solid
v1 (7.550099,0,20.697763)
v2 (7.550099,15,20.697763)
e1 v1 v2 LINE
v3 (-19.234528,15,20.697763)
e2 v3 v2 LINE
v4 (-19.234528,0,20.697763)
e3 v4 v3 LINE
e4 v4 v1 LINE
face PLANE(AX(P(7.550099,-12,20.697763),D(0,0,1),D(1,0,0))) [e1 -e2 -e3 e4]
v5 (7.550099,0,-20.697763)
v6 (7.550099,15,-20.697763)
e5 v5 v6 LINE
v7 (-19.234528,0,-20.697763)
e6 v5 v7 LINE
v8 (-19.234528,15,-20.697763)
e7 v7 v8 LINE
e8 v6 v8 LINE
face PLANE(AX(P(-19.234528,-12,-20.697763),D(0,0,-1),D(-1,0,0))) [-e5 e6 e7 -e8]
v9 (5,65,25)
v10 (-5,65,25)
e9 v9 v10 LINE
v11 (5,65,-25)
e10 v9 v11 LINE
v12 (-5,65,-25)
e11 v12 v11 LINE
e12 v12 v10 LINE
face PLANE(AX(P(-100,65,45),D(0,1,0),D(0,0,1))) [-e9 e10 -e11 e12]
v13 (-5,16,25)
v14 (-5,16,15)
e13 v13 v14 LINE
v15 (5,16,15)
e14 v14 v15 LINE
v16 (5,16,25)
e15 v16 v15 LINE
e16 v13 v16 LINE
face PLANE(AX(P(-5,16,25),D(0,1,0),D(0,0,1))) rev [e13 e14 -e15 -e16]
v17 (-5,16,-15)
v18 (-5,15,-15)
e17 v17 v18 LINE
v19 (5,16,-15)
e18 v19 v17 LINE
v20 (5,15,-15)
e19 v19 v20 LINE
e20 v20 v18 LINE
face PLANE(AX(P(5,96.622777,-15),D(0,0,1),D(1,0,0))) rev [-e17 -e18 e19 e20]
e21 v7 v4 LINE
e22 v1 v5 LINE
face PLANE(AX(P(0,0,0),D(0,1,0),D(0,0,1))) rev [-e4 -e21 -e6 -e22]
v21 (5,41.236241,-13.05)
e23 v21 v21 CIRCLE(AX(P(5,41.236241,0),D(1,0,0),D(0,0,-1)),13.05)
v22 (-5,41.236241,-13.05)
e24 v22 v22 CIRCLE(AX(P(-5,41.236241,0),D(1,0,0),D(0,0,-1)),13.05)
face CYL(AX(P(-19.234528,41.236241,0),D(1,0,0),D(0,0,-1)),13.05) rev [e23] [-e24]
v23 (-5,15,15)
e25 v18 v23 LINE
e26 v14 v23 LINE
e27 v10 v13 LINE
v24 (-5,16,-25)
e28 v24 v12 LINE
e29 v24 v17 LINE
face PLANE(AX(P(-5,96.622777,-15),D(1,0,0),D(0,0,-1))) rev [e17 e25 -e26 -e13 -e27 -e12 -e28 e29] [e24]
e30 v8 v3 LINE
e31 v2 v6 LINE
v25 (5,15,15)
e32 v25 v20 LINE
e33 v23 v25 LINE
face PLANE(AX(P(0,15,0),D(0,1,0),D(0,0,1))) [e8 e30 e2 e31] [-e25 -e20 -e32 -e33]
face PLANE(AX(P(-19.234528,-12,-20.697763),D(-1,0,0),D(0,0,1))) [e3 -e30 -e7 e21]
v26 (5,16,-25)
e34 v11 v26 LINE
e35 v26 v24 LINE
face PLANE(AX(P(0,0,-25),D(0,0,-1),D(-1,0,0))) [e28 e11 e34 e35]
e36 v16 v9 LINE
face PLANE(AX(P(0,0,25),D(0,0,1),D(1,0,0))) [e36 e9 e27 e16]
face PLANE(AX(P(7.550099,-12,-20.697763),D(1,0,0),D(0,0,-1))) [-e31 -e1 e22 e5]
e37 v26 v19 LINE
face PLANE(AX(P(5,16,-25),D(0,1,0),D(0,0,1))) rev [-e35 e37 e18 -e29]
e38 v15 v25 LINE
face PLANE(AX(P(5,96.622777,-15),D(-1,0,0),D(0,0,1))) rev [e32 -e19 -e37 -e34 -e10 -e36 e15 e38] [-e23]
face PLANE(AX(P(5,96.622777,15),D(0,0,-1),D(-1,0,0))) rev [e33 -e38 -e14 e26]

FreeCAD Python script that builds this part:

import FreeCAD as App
import Part
import Sketcher
from FreeCAD import Vector

doc = App.newDocument("Part")
params = doc.addObject("Spreadsheet::Sheet", "Params")
for row, (alias, value) in enumerate([
    ("sketch1_width", "280 mm"),
    ("sketch1_height", "210 mm"),
    ("pad1_length", "15 mm"),
    ("sketch2_diameter", "10 mm"),
    ("pad2_length", "50 mm"),
    ("sketch3_width", "10 mm"),
    ("sketch3_height", "30 mm"),
    ("pad3_length", "50 mm"),
    ("pocket1_length", "15 mm"),
    ("sketch5_diameter", "10 mm"),
    ("pocket2_length", "65 mm"),
    ("sketch6_diameter", "20 mm"),
    ("pocket3_length", "12 mm"),
    ("sketch7_width", "29.13 mm"),
    ("sketch7_height", "16.72 mm"),
    ("pocket4_length", "15 mm"),
    ("pocket5_length", "27 mm"),
    ("sketch9_width", "10 mm"),
    ("sketch9_height", "49 mm"),
    ("pad4_length", "10 mm"),
    ("sketch10_width", "10 mm"),
    ("sketch10_height", "49 mm"),
    ("pad5_length", "10 mm"),
    ("sketch11_diameter", "26.1 mm"),
], start=1):
    params.set(f"A{row}", alias)
    params.set(f"B{row}", "=" + value)
    params.setAlias(f"B{row}", alias)

body = doc.addObject("PartDesign::Body", "Body")

# Sketch on XZ plane
sketch1 = doc.addObject("Sketcher::SketchObject", "Sketch")
body.addObject(sketch1)
sketch1.AttachmentSupport = (doc.XZ_Plane, [""])
sketch1.MapMode = "FlatFace"
sketch1.addGeometry(Part.LineSegment(Vector(-140, -105, 0), Vector(-140, 105, 0)), False)
sketch1.addGeometry(Part.LineSegment(Vector(-140, 105, 0), Vector(140, 105, 0)), False)
sketch1.addGeometry(Part.LineSegment(Vector(140, 105, 0), Vector(140, -105, 0)), False)
sketch1.addGeometry(Part.LineSegment(Vector(140, -105, 0), Vector(-140, -105, 0)), False)
sketch1.addConstraint(Sketcher.Constraint("Coincident", 0, 2, 1, 1))
sketch1.addConstraint(Sketcher.Constraint("Coincident", 1, 2, 2, 1))
sketch1.addConstraint(Sketcher.Constraint("Coincident", 2, 2, 3, 1))
sketch1.addConstraint(Sketcher.Constraint("Coincident", 3, 2, 0, 1))
sketch1.addConstraint(Sketcher.Constraint("Vertical", 0))
sketch1.addConstraint(Sketcher.Constraint("Horizontal", 1))
sketch1.addConstraint(Sketcher.Constraint("Vertical", 2))
sketch1.addConstraint(Sketcher.Constraint("Horizontal", 3))
sketch1.addConstraint(Sketcher.Constraint("Symmetric", 0, 2, 2, 2, -1, 1))
sketch1.addConstraint(Sketcher.Constraint("DistanceX", 1, 1, 1, 2, 280.0))
sketch1.addConstraint(Sketcher.Constraint("DistanceY", 0, 1, 0, 2, 210.0))
sketch1.setExpression("Constraints[9]", "Params.sketch1_width")
sketch1.setExpression("Constraints[10]", "Params.sketch1_height")
pad1 = doc.addObject("PartDesign::Pad", "Pad")
body.addObject(pad1)
pad1.Profile = sketch1
pad1.setExpression("Length", "Params.pad1_length")
pad1.Reversed = True

# Sketch on XZ plane
sketch2 = doc.addObject("Sketcher::SketchObject", "Sketch001")
body.addObject(sketch2)
sketch2.AttachmentSupport = (doc.XZ_Plane, [""])
sketch2.MapMode = "FlatFace"
sketch2.AttachmentOffset = App.Placement(Vector(0, 0, -15), App.Rotation())
sketch2.addGeometry(Part.Circle(Vector(-100, 0, 0), Vector(0, 0, 1), 5), False)
sketch2.addGeometry(Part.Circle(Vector(-100, -45, 0), Vector(0, 0, 1), 5), False)
sketch2.addGeometry(Part.Circle(Vector(-100, 45, 0), Vector(0, 0, 1), 5), False)
sketch2.addConstraint(Sketcher.Constraint("Equal", 0, 1))
sketch2.addConstraint(Sketcher.Constraint("Equal", 1, 2))
sketch2.addConstraint(Sketcher.Constraint("Symmetric", 1, 3, 2, 3, -1))
sketch2.addConstraint(Sketcher.Constraint("PointOnObject", 0, 3, -1))
sketch2.addConstraint(Sketcher.Constraint("Vertical", 0, 3, 1, 3))
sketch2.addConstraint(Sketcher.Constraint("Diameter", 0, 10.0))
sketch2.addConstraint(Sketcher.Constraint("DistanceX", 0, 3, -1, 1, 100.0))
sketch2.addConstraint(Sketcher.Constraint("DistanceY", 1, 3, -1, 1, 45.0))
sketch2.setExpression("Constraints[5]", "Params.sketch2_diameter")
pad2 = doc.addObject("PartDesign::Pad", "Pad001")
body.addObject(pad2)
pad2.Profile = sketch2
pad2.setExpression("Length", "Params.pad2_length")
pad2.Reversed = True

# Sketch on XZ plane
sketch3 = doc.addObject("Sketcher::SketchObject", "Sketch002")
body.addObject(sketch3)
sketch3.AttachmentSupport = (doc.XZ_Plane, [""])
sketch3.MapMode = "FlatFace"
sketch3.AttachmentOffset = App.Placement(Vector(0, 0, -15), App.Rotation())
sketch3.addGeometry(Part.LineSegment(Vector(-5, -15, 0), Vector(-5, 15, 0)), False)
sketch3.addGeometry(Part.LineSegment(Vector(-5, 15, 0), Vector(5, 15, 0)), False)
sketch3.addGeometry(Part.LineSegment(Vector(5, 15, 0), Vector(5, -15, 0)), False)
sketch3.addGeometry(Part.LineSegment(Vector(5, -15, 0), Vector(-5, -15, 0)), False)
sketch3.addConstraint(Sketcher.Constraint("Coincident", 0, 2, 1, 1))
sketch3.addConstraint(Sketcher.Constraint("Coincident", 1, 2, 2, 1))
sketch3.addConstraint(Sketcher.Constraint("Coincident", 2, 2, 3, 1))
sketch3.addConstraint(Sketcher.Constraint("Coincident", 3, 2, 0, 1))
sketch3.addConstraint(Sketcher.Constraint("Vertical", 0))
sketch3.addConstraint(Sketcher.Constraint("Horizontal", 1))
sketch3.addConstraint(Sketcher.Constraint("Vertical", 2))
sketch3.addConstraint(Sketcher.Constraint("Horizontal", 3))
sketch3.addConstraint(Sketcher.Constraint("Symmetric", 0, 2, 2, 2, -1, 1))
sketch3.addConstraint(Sketcher.Constraint("DistanceX", 1, 1, 1, 2, 10.0))
sketch3.addConstraint(Sketcher.Constraint("DistanceY", 0, 1, 0, 2, 30.0))
sketch3.setExpression("Constraints[9]", "Params.sketch3_width")
sketch3.setExpression("Constraints[10]", "Params.sketch3_height")
pad3 = doc.addObject("PartDesign::Pad", "Pad002")
body.addObject(pad3)
pad3.Profile = sketch3
pad3.setExpression("Length", "Params.pad3_length")
pad3.Reversed = True

# Sketch on XZ plane
sketch4 = doc.addObject("Sketcher::SketchObject", "Sketch003")
body.addObject(sketch4)
sketch4.AttachmentSupport = (doc.XZ_Plane, [""])
sketch4.MapMode = "FlatFace"
sketch4.addGeometry(Part.LineSegment(Vector(-179, -121, 0), Vector(-179, 128, 0)), False)
sketch4.addGeometry(Part.LineSegment(Vector(-179, 128, 0), Vector(182, 128, 0)), False)
sketch4.addGeometry(Part.LineSegment(Vector(182, 128, 0), Vector(182, -121, 0)), False)
sketch4.addGeometry(Part.LineSegment(Vector(182, -121, 0), Vector(-179, -121, 0)), False)
sketch4.addGeometry(Part.LineSegment(Vector(124, 63, 0), Vector(-124, 63, 0)), False)
sketch4.addGeometry(Part.LineSegment(Vector(-124, 63, 0), Vector(-124, -63, 0)), False)
sketch4.addGeometry(Part.LineSegment(Vector(-124, -63, 0), Vector(124, -63, 0)), False)
sketch4.addGeometry(Part.LineSegment(Vector(124, -63, 0), Vector(124, 63, 0)), False)
sketch4.addConstraint(Sketcher.Constraint("Coincident", 0, 2, 1, 1))
sketch4.addConstraint(Sketcher.Constraint("Coincident", 1, 2, 2, 1))
sketch4.addConstraint(Sketcher.Constraint("Coincident", 2, 2, 3, 1))
sketch4.addConstraint(Sketcher.Constraint("Coincident", 3, 2, 0, 1))
sketch4.addConstraint(Sketcher.Constraint("Coincident", 4, 2, 5, 1))
sketch4.addConstraint(Sketcher.Constraint("Coincident", 5, 2, 6, 1))
sketch4.addConstraint(Sketcher.Constraint("Coincident", 6, 2, 7, 1))
sketch4.addConstraint(Sketcher.Constraint("Coincident", 7, 2, 4, 1))
sketch4.addConstraint(Sketcher.Constraint("Vertical", 0))
sketch4.addConstraint(Sketcher.Constraint("Horizontal", 1))
sketch4.addConstraint(Sketcher.Constraint("Vertical", 2))
sketch4.addConstraint(Sketcher.Constraint("Horizontal", 3))
sketch4.addConstraint(Sketcher.Constraint("Horizontal", 4))
sketch4.addConstraint(Sketcher.Constraint("Vertical", 5))
sketch4.addConstraint(Sketcher.Constraint("Horizontal", 6))
sketch4.addConstraint(Sketcher.Constraint("Vertical", 7))
sketch4.addConstraint(Sketcher.Constraint("Symmetric", 4, 2, 6, 2, -1, 1))
sketch4.addConstraint(Sketcher.Constraint("DistanceX", 1, 1, 1, 2, 360.490906))
sketch4.addConstraint(Sketcher.Constraint("DistanceX", 4, 2, 4, 1, 248.173777))
sketch4.addConstraint(Sketcher.Constraint("DistanceY", 0, 1, 0, 2, 249.182613))
sketch4.addConstraint(Sketcher.Constraint("DistanceY", 5, 2, 5, 1, 125.095725))
sketch4.addConstraint(Sketcher.Constraint("DistanceX", -1, 1, 1, 2, 181.590568))
sketch4.addConstraint(Sketcher.Constraint("DistanceY", 3, 2, 4, 2, 183.94452))
pocket1 = doc.addObject("PartDesign::Pocket", "Pocket")
body.addObject(pocket1)
pocket1.Profile = sketch4
pocket1.setExpression("Length", "Params.pocket1_length")

# Sketch on XZ plane
sketch5 = doc.addObject("Sketcher::SketchObject", "Sketch004")
body.addObject(sketch5)
sketch5.AttachmentSupport = (doc.XZ_Plane, [""])
sketch5.MapMode = "FlatFace"
sketch5.addGeometry(Part.Circle(Vector(-100, -45, 0), Vector(0, 0, 1), 5), False)
sketch5.addGeometry(Part.Circle(Vector(-100, 0, 0), Vector(0, 0, 1), 5), False)
sketch5.addGeometry(Part.Circle(Vector(-100, 45, 0), Vector(0, 0, 1), 5), False)
sketch5.addConstraint(Sketcher.Constraint("Equal", 0, 1))
sketch5.addConstraint(Sketcher.Constraint("Equal", 1, 2))
sketch5.addConstraint(Sketcher.Constraint("Symmetric", 0, 3, 2, 3, -1))
sketch5.addConstraint(Sketcher.Constraint("PointOnObject", 1, 3, -1))
sketch5.addConstraint(Sketcher.Constraint("Vertical", 0, 3, 1, 3))
sketch5.addConstraint(Sketcher.Constraint("Diameter", 0, 10.0))
sketch5.addConstraint(Sketcher.Constraint("DistanceX", 0, 3, -1, 1, 100.0))
sketch5.addConstraint(Sketcher.Constraint("DistanceY", 0, 3, -1, 1, 45.0))
sketch5.setExpression("Constraints[5]", "Params.sketch5_diameter")
pocket2 = doc.addObject("PartDesign::Pocket", "Pocket001")
body.addObject(pocket2)
pocket2.Profile = sketch5
pocket2.setExpression("Length", "Params.pocket2_length")

# Sketch on XZ plane
sketch6 = doc.addObject("Sketcher::SketchObject", "Sketch005")
body.addObject(sketch6)
sketch6.AttachmentSupport = (doc.XZ_Plane, [""])
sketch6.MapMode = "FlatFace"
sketch6.addGeometry(Part.Circle(Vector(-100, 45, 0), Vector(0, 0, 1), 10), False)
sketch6.addGeometry(Part.Circle(Vector(-100, 0, 0), Vector(0, 0, 1), 10), False)
sketch6.addGeometry(Part.Circle(Vector(-100, -45, 0), Vector(0, 0, 1), 10), False)
sketch6.addConstraint(Sketcher.Constraint("Equal", 0, 1))
sketch6.addConstraint(Sketcher.Constraint("Equal", 1, 2))
sketch6.addConstraint(Sketcher.Constraint("Symmetric", 0, 3, 2, 3, -1))
sketch6.addConstraint(Sketcher.Constraint("PointOnObject", 1, 3, -1))
sketch6.addConstraint(Sketcher.Constraint("Vertical", 0, 3, 1, 3))
sketch6.addConstraint(Sketcher.Constraint("Diameter", 0, 20.0))
sketch6.addConstraint(Sketcher.Constraint("DistanceX", 0, 3, -1, 1, 100.0))
sketch6.addConstraint(Sketcher.Constraint("DistanceY", -1, 1, 0, 3, 45.0))
sketch6.setExpression("Constraints[5]", "Params.sketch6_diameter")
pocket3 = doc.addObject("PartDesign::Pocket", "Pocket002")
body.addObject(pocket3)
pocket3.Profile = sketch6
pocket3.setExpression("Length", "Params.pocket3_length")

# Sketch on XZ plane
sketch7 = doc.addObject("Sketcher::SketchObject", "Sketch006")
body.addObject(sketch7)
sketch7.AttachmentSupport = (doc.XZ_Plane, [""])
sketch7.MapMode = "FlatFace"
sketch7.AttachmentOffset = App.Placement(Vector(0, 0, -15), App.Rotation())
sketch7.addGeometry(Part.LineSegment(Vector(-63, -60, 0), Vector(-63, -43, 0)), False)
sketch7.addGeometry(Part.LineSegment(Vector(-63, -43, 0), Vector(-34, -43, 0)), False)
sketch7.addGeometry(Part.LineSegment(Vector(-34, -43, 0), Vector(-34, -60, 0)), False)
sketch7.addGeometry(Part.LineSegment(Vector(-34, -60, 0), Vector(-63, -60, 0)), False)
sketch7.addConstraint(Sketcher.Constraint("Coincident", 0, 2, 1, 1))
sketch7.addConstraint(Sketcher.Constraint("Coincident", 1, 2, 2, 1))
sketch7.addConstraint(Sketcher.Constraint("Coincident", 2, 2, 3, 1))
sketch7.addConstraint(Sketcher.Constraint("Coincident", 3, 2, 0, 1))
sketch7.addConstraint(Sketcher.Constraint("Vertical", 0))
sketch7.addConstraint(Sketcher.Constraint("Horizontal", 1))
sketch7.addConstraint(Sketcher.Constraint("Vertical", 2))
sketch7.addConstraint(Sketcher.Constraint("Horizontal", 3))
sketch7.addConstraint(Sketcher.Constraint("DistanceX", 1, 1, 1, 2, 29.13))
sketch7.addConstraint(Sketcher.Constraint("DistanceY", 0, 1, 0, 2, 16.72))
sketch7.addConstraint(Sketcher.Constraint("DistanceX", 0, 2, -1, 1, 62.962782))
sketch7.addConstraint(Sketcher.Constraint("DistanceY", 0, 2, -1, 1, 42.911912))
sketch7.setExpression("Constraints[8]", "Params.sketch7_width")
sketch7.setExpression("Constraints[9]", "Params.sketch7_height")
pocket4 = doc.addObject("PartDesign::Pocket", "Pocket003")
body.addObject(pocket4)
pocket4.Profile = sketch7
pocket4.setExpression("Length", "Params.pocket4_length")
pocket4.Reversed = True

# Sketch on XZ plane
sketch8 = doc.addObject("Sketcher::SketchObject", "Sketch007")
body.addObject(sketch8)
sketch8.AttachmentSupport = (doc.XZ_Plane, [""])
sketch8.MapMode = "FlatFace"
sketch8.AttachmentOffset = App.Placement(Vector(0, 0, -15), App.Rotation())
sketch8.addGeometry(Part.LineSegment(Vector(-124, -63, 0), Vector(-124, 63, 0)), False)
sketch8.addGeometry(Part.LineSegment(Vector(-124, 63, 0), Vector(124, 63, 0)), False)
sketch8.addGeometry(Part.LineSegment(Vector(124, 63, 0), Vector(124, -63, 0)), False)
sketch8.addGeometry(Part.LineSegment(Vector(124, -63, 0), Vector(-124, -63, 0)), False)
sketch8.addGeometry(Part.LineSegment(Vector(8, 21, 0), Vector(-19, 21, 0)), False)
sketch8.addGeometry(Part.LineSegment(Vector(-19, 21, 0), Vector(-19, -21, 0)), False)
sketch8.addGeometry(Part.LineSegment(Vector(-19, -21, 0), Vector(8, -21, 0)), False)
sketch8.addGeometry(Part.LineSegment(Vector(8, -21, 0), Vector(8, 21, 0)), False)
sketch8.addConstraint(Sketcher.Constraint("Coincident", 0, 2, 1, 1))
sketch8.addConstraint(Sketcher.Constraint("Coincident", 1, 2, 2, 1))
sketch8.addConstraint(Sketcher.Constraint("Coincident", 2, 2, 3, 1))
sketch8.addConstraint(Sketcher.Constraint("Coincident", 3, 2, 0, 1))
sketch8.addConstraint(Sketcher.Constraint("Coincident", 4, 2, 5, 1))
sketch8.addConstraint(Sketcher.Constraint("Coincident", 5, 2, 6, 1))
sketch8.addConstraint(Sketcher.Constraint("Coincident", 6, 2, 7, 1))
sketch8.addConstraint(Sketcher.Constraint("Coincident", 7, 2, 4, 1))
sketch8.addConstraint(Sketcher.Constraint("Vertical", 0))
sketch8.addConstraint(Sketcher.Constraint("Horizontal", 1))
sketch8.addConstraint(Sketcher.Constraint("Vertical", 2))
sketch8.addConstraint(Sketcher.Constraint("Horizontal", 3))
sketch8.addConstraint(Sketcher.Constraint("Horizontal", 4))
sketch8.addConstraint(Sketcher.Constraint("Vertical", 5))
sketch8.addConstraint(Sketcher.Constraint("Horizontal", 6))
sketch8.addConstraint(Sketcher.Constraint("Vertical", 7))
sketch8.addConstraint(Sketcher.Constraint("Symmetric", 0, 2, 2, 2, -1, 1))
sketch8.addConstraint(Sketcher.Constraint("DistanceX", -1, 1, 6, 2, 7.550099))
sketch8.addConstraint(Sketcher.Constraint("DistanceY", 4, 2, 0, 2, 41.850099))
sketch8.addConstraint(Sketcher.Constraint("DistanceY", 3, 2, 5, 2, 41.850099))
sketch8.addConstraint(Sketcher.Constraint("DistanceX", 1, 1, 1, 2, 248.173777))
sketch8.addConstraint(Sketcher.Constraint("DistanceX", 4, 2, 4, 1, 26.784627))
sketch8.addConstraint(Sketcher.Constraint("DistanceY", 0, 1, 0, 2, 125.095725))
pocket5 = doc.addObject("PartDesign::Pocket", "Pocket004")
body.addObject(pocket5)
pocket5.Profile = sketch8
pocket5.setExpression("Length", "Params.pocket5_length")
pocket5.Reversed = True

# Sketch on XY plane
sketch9 = doc.addObject("Sketcher::SketchObject", "Sketch008")
body.addObject(sketch9)
sketch9.AttachmentSupport = (doc.XY_Plane, [""])
sketch9.MapMode = "FlatFace"
sketch9.AttachmentOffset = App.Placement(Vector(0, 0, -15), App.Rotation())
sketch9.addGeometry(Part.LineSegment(Vector(5, 65, 0), Vector(5, 16, 0)), False)
sketch9.addGeometry(Part.LineSegment(Vector(5, 16, 0), Vector(-5, 16, 0)), False)
sketch9.addGeometry(Part.LineSegment(Vector(-5, 16, 0), Vector(-5, 65, 0)), False)
sketch9.addGeometry(Part.LineSegment(Vector(-5, 65, 0), Vector(5, 65, 0)), False)
sketch9.addConstraint(Sketcher.Constraint("Coincident", 0, 2, 1, 1))
sketch9.addConstraint(Sketcher.Constraint("Coincident", 1, 2, 2, 1))
sketch9.addConstraint(Sketcher.Constraint("Coincident", 2, 2, 3, 1))
sketch9.addConstraint(Sketcher.Constraint("Coincident", 3, 2, 0, 1))
sketch9.addConstraint(Sketcher.Constraint("Vertical", 0))
sketch9.addConstraint(Sketcher.Constraint("Horizontal", 1))
sketch9.addConstraint(Sketcher.Constraint("Vertical", 2))
sketch9.addConstraint(Sketcher.Constraint("Horizontal", 3))
sketch9.addConstraint(Sketcher.Constraint("DistanceX", 1, 2, 1, 1, 10.0))
sketch9.addConstraint(Sketcher.Constraint("DistanceY", 0, 2, 0, 1, 49.0))
sketch9.addConstraint(Sketcher.Constraint("DistanceX", -1, 1, 0, 2, 5.0))
sketch9.addConstraint(Sketcher.Constraint("DistanceY", -1, 1, 0, 2, 16.0))
sketch9.setExpression("Constraints[8]", "Params.sketch9_width")
sketch9.setExpression("Constraints[9]", "Params.sketch9_height")
pad4 = doc.addObject("PartDesign::Pad", "Pad003")
body.addObject(pad4)
pad4.Profile = sketch9
pad4.setExpression("Length", "Params.pad4_length")
pad4.Reversed = True

# Sketch on XY plane
sketch10 = doc.addObject("Sketcher::SketchObject", "Sketch009")
body.addObject(sketch10)
sketch10.AttachmentSupport = (doc.XY_Plane, [""])
sketch10.MapMode = "FlatFace"
sketch10.AttachmentOffset = App.Placement(Vector(0, 0, 15), App.Rotation())
sketch10.addGeometry(Part.LineSegment(Vector(-5, 65, 0), Vector(-5, 16, 0)), False)
sketch10.addGeometry(Part.LineSegment(Vector(-5, 16, 0), Vector(5, 16, 0)), False)
sketch10.addGeometry(Part.LineSegment(Vector(5, 16, 0), Vector(5, 65, 0)), False)
sketch10.addGeometry(Part.LineSegment(Vector(5, 65, 0), Vector(-5, 65, 0)), False)
sketch10.addConstraint(Sketcher.Constraint("Coincident", 0, 2, 1, 1))
sketch10.addConstraint(Sketcher.Constraint("Coincident", 1, 2, 2, 1))
sketch10.addConstraint(Sketcher.Constraint("Coincident", 2, 2, 3, 1))
sketch10.addConstraint(Sketcher.Constraint("Coincident", 3, 2, 0, 1))
sketch10.addConstraint(Sketcher.Constraint("Vertical", 0))
sketch10.addConstraint(Sketcher.Constraint("Horizontal", 1))
sketch10.addConstraint(Sketcher.Constraint("Vertical", 2))
sketch10.addConstraint(Sketcher.Constraint("Horizontal", 3))
sketch10.addConstraint(Sketcher.Constraint("DistanceX", 1, 1, 1, 2, 10.0))
sketch10.addConstraint(Sketcher.Constraint("DistanceY", 0, 2, 0, 1, 49.0))
sketch10.addConstraint(Sketcher.Constraint("DistanceX", 0, 2, -1, 1, 5.0))
sketch10.addConstraint(Sketcher.Constraint("DistanceY", -1, 1, 0, 2, 16.0))
sketch10.setExpression("Constraints[8]", "Params.sketch10_width")
sketch10.setExpression("Constraints[9]", "Params.sketch10_height")
pad5 = doc.addObject("PartDesign::Pad", "Pad004")
body.addObject(pad5)
pad5.Profile = sketch10
pad5.setExpression("Length", "Params.pad5_length")

# Sketch on YZ plane
sketch11 = doc.addObject("Sketcher::SketchObject", "Sketch010")
body.addObject(sketch11)
sketch11.AttachmentSupport = (doc.YZ_Plane, [""])
sketch11.MapMode = "FlatFace"
sketch11.AttachmentOffset = App.Placement(Vector(0, 0, 5), App.Rotation())
sketch11.addGeometry(Part.Circle(Vector(41, 0, 0), Vector(0, 0, 1), 13), False)
sketch11.addConstraint(Sketcher.Constraint("PointOnObject", 0, 3, -1))
sketch11.addConstraint(Sketcher.Constraint("Diameter", 0, 26.1))
sketch11.addConstraint(Sketcher.Constraint("DistanceX", -1, 1, 0, 3, 41.236241))
sketch11.setExpression("Constraints[1]", "Params.sketch11_diameter")
pocket6 = doc.addObject("PartDesign::Pocket", "Pocket005")
body.addObject(pocket6)
pocket6.Profile = sketch11
pocket6.Type = "ThroughAll"

doc.recompute()
